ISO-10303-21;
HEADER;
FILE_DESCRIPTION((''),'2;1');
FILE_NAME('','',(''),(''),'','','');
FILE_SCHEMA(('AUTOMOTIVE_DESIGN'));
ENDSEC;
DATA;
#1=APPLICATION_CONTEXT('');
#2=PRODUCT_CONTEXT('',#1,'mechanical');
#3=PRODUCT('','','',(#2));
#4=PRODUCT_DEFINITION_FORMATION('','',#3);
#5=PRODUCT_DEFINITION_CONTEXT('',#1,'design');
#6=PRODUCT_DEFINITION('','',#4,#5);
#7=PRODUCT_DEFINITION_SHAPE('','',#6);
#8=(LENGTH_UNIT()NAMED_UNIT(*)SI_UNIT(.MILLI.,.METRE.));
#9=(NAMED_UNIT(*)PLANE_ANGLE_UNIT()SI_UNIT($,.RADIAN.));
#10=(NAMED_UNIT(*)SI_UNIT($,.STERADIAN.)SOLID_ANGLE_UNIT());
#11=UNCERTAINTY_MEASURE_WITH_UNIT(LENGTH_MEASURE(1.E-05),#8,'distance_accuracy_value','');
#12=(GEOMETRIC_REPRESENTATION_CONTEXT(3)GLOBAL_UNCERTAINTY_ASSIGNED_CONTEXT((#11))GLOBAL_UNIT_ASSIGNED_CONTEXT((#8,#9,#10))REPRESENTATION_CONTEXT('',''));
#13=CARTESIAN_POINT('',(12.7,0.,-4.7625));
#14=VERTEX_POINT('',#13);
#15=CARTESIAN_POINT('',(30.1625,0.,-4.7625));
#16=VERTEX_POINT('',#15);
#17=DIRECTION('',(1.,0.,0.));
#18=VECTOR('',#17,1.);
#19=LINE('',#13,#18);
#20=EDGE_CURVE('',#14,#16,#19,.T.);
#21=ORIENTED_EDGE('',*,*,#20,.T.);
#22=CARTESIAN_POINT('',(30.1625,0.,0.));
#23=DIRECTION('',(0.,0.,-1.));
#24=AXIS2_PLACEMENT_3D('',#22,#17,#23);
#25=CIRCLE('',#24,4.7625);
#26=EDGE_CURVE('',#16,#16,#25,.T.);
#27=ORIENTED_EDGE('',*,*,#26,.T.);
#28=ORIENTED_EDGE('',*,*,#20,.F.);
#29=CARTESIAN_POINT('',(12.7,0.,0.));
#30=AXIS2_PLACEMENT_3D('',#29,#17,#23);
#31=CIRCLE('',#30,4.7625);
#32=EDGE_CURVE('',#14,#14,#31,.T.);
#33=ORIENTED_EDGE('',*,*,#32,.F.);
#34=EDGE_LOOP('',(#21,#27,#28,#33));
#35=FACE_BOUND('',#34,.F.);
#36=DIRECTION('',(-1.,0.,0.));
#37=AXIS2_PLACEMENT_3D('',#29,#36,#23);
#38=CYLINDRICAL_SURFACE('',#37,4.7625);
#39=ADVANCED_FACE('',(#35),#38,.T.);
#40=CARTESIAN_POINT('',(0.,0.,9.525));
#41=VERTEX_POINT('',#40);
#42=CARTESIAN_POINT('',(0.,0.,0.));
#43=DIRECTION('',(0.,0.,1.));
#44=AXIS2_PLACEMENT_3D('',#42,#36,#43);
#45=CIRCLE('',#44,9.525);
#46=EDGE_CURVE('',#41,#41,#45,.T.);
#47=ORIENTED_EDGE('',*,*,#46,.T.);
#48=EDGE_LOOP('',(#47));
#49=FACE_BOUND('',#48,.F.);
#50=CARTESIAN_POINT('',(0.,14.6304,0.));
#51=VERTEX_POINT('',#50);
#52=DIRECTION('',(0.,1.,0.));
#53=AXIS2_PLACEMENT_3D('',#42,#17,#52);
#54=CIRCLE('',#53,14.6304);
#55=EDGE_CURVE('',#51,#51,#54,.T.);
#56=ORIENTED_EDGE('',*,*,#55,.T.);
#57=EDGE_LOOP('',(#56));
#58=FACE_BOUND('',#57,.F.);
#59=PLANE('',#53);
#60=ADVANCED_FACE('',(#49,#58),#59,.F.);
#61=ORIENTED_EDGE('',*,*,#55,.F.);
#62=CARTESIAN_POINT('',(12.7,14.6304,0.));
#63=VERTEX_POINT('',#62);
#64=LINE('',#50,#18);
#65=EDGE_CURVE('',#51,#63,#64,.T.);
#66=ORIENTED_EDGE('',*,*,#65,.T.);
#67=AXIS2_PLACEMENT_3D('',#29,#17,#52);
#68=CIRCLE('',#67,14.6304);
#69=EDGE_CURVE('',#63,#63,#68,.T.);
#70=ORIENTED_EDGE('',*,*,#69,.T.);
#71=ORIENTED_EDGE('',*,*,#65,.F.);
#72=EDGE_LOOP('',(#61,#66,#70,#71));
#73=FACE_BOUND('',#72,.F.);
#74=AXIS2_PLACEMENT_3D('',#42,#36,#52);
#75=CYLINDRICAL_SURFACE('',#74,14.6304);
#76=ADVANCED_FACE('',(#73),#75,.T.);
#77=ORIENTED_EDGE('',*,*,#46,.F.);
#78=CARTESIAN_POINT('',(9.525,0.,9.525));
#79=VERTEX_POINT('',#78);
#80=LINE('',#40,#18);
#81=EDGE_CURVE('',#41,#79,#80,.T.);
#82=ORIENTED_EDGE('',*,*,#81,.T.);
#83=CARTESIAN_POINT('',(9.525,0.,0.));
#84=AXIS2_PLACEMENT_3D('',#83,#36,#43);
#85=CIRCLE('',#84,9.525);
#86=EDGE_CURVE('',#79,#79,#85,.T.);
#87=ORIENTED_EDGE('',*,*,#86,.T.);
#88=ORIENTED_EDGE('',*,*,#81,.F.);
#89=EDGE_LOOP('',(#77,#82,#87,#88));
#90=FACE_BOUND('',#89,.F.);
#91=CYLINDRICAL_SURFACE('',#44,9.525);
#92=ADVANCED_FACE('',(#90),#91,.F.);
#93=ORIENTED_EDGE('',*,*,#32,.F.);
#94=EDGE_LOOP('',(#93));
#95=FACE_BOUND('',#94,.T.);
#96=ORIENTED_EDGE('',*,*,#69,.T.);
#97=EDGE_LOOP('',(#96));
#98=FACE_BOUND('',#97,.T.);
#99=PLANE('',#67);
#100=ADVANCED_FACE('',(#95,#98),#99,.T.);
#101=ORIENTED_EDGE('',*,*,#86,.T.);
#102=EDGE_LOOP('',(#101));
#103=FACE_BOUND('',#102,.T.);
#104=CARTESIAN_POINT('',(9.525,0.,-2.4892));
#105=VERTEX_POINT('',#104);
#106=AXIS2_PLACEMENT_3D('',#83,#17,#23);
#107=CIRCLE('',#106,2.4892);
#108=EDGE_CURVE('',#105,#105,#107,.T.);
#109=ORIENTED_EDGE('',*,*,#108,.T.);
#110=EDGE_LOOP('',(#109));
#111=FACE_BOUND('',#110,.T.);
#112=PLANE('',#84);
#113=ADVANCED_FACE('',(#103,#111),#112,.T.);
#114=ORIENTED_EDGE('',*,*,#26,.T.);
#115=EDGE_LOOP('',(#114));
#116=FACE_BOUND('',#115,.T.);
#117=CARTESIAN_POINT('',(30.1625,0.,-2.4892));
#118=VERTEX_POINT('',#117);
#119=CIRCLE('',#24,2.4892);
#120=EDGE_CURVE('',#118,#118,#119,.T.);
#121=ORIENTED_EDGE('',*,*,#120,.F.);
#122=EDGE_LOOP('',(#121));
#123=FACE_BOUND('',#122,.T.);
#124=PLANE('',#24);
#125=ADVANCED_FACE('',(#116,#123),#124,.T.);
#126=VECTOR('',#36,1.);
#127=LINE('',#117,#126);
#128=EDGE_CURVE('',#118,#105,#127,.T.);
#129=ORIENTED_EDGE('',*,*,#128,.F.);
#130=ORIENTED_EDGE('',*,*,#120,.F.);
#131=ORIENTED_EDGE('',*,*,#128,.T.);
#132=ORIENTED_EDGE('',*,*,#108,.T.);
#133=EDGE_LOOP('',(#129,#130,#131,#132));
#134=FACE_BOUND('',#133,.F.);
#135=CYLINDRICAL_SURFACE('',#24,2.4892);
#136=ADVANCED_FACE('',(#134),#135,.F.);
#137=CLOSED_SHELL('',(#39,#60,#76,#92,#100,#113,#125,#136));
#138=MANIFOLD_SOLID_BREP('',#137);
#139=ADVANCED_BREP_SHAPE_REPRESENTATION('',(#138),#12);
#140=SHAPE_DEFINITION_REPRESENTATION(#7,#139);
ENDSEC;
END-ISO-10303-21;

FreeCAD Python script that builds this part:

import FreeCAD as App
import Part
import Sketcher
from FreeCAD import Vector
Q = App.Units.Quantity

doc = App.newDocument("Part")
body = doc.addObject("PartDesign::Body", "Body")

sketch1 = doc.addObject("Sketcher::SketchObject", "Sketch")
body.addObject(sketch1)
sketch1.AttachmentSupport = (doc.YZ_Plane, [""])
sketch1.MapMode = "FlatFace"
sketch1.addGeometry(Part.Circle(Vector(0, 0, 0), Vector(0, 0, 1), 15), False)
sketch1.addConstraint([
    Sketcher.Constraint("Coincident", 0, 3, -1, 1),
    Sketcher.Constraint("Diameter", 0, Q("1.152 in")),
])
pad1 = doc.addObject("PartDesign::Pad", "Pad")
body.addObject(pad1)
pad1.Profile = sketch1
pad1.Length = Q("0.5 in")

sketch2 = doc.addObject("Sketcher::SketchObject", "Sketch001")
body.addObject(sketch2)
sketch2.AttachmentSupport = (doc.YZ_Plane, [""])
sketch2.MapMode = "FlatFace"
sketch2.AttachmentOffset = App.Placement(Vector(0, 0, 0.5 * 25.4), App.Rotation())
sketch2.addGeometry(Part.Circle(Vector(0, 0, 0), Vector(0, 0, 1), 4.8), False)
sketch2.addConstraint([
    Sketcher.Constraint("Coincident", 0, 3, -1, 1),
    Sketcher.Constraint("Diameter", 0, Q("0.375 in")),
])
pad2 = doc.addObject("PartDesign::Pad", "Pad001")
body.addObject(pad2)
pad2.Profile = sketch2
pad2.Length = Q("0.6875 in")

sketch3 = doc.addObject("Sketcher::SketchObject", "Sketch002")
body.addObject(sketch3)
sketch3.AttachmentSupport = (doc.YZ_Plane, [""])
sketch3.MapMode = "FlatFace"
sketch3.AttachmentOffset = App.Placement(Vector(0, 0, 1.1875 * 25.4), App.Rotation())
sketch3.addGeometry(Part.Circle(Vector(0, 0, 0), Vector(0, 0, 1), 2.5), False)
sketch3.addConstraint([
    Sketcher.Constraint("Coincident", 0, 3, -1, 1),
    Sketcher.Constraint("Diameter", 0, Q("0.196 in")),
])
pocket1 = doc.addObject("PartDesign::Pocket", "Pocket")
body.addObject(pocket1)
pocket1.Profile = sketch3
pocket1.Type = "ThroughAll"

sketch4 = doc.addObject("Sketcher::SketchObject", "Sketch003")
body.addObject(sketch4)
sketch4.AttachmentSupport = (doc.YZ_Plane, [""])
sketch4.MapMode = "FlatFace"
sketch4.addGeometry(Part.Circle(Vector(0, 0, 0), Vector(0, 0, 1), 10), False)
sketch4.addConstraint([
    Sketcher.Constraint("Coincident", 0, 3, -1, 1),
    Sketcher.Constraint("Diameter", 0, Q("0.75 in")),
])
pocket2 = doc.addObject("PartDesign::Pocket", "Pocket001")
body.addObject(pocket2)
pocket2.Profile = sketch4
pocket2.Length = Q("0.375 in")
pocket2.Reversed = True

doc.recompute()
